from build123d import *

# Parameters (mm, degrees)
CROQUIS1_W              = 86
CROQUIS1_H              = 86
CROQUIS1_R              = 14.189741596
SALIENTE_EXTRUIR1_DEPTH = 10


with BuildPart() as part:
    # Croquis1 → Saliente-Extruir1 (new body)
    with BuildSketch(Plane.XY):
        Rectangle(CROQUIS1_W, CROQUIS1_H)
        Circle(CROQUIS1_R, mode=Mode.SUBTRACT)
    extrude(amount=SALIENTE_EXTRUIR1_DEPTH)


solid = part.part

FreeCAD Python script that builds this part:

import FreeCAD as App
import Part
import Sketcher
from FreeCAD import Vector
Q = App.Units.Quantity


def add_polygon(sketch, points):
    """Adds a closed chain of lines whose ends are joined by coincident constraints."""
    first, n = sketch.GeometryCount, len(points)
    for a, b in zip(points, points[1:] + points[:1]):
        sketch.addGeometry(Part.LineSegment(App.Vector(*a, 0), App.Vector(*b, 0)), False)
    for i in range(n):
        sketch.addConstraint(Sketcher.Constraint("Coincident", first + i, 2, first + (i + 1) % n, 1))

doc = App.newDocument("Part")
params = doc.addObject("Spreadsheet::Sheet", "Params")
for row, (alias, value) in enumerate([
    ("sketch1_width", "86 mm"),
    ("pad1_length", "10 mm"),
], start=1):
    params.set(f"A{row}", alias)
    params.set(f"B{row}", "=" + value)
    params.setAlias(f"B{row}", alias)

body = doc.addObject("PartDesign::Body", "Body")

sketch1 = body.newObject("Sketcher::SketchObject", "Sketch")
sketch1.AttachmentSupport = (doc.getObject("XY_Plane"), [""])
sketch1.MapMode = "FlatFace"
add_polygon(sketch1, [(-43, 43), (-43, -43), (43, -43), (43, 43)])
sketch1.addGeometry(Part.Circle(Vector(0, 0, 0), Vector(0, 0, 1), 14), False)
sketch1.addConstraint([
    Sketcher.Constraint("Vertical", 0),
    Sketcher.Constraint("Horizontal", 1),
    Sketcher.Constraint("Vertical", 2),
    Sketcher.Constraint("Horizontal", 3),
    Sketcher.Constraint("Coincident", 4, 3, -1, 1),
    Sketcher.Constraint("Symmetric", 0, 2, 2, 2, -1, 1),
    Sketcher.Constraint("Equal", 3, 0),
    Sketcher.Constraint("DistanceX", 1, 1, 1, 2, Q("86 mm")),
    Sketcher.Constraint("Diameter", 4, Q("28.379483 mm")),
])
sketch1.setExpression("Constraints[11]", "Params.sketch1_width")
pad1 = body.newObject("PartDesign::Pad", "Pad")
pad1.Profile = sketch1
pad1.setExpression("Length", "Params.pad1_length")

doc.recompute()
